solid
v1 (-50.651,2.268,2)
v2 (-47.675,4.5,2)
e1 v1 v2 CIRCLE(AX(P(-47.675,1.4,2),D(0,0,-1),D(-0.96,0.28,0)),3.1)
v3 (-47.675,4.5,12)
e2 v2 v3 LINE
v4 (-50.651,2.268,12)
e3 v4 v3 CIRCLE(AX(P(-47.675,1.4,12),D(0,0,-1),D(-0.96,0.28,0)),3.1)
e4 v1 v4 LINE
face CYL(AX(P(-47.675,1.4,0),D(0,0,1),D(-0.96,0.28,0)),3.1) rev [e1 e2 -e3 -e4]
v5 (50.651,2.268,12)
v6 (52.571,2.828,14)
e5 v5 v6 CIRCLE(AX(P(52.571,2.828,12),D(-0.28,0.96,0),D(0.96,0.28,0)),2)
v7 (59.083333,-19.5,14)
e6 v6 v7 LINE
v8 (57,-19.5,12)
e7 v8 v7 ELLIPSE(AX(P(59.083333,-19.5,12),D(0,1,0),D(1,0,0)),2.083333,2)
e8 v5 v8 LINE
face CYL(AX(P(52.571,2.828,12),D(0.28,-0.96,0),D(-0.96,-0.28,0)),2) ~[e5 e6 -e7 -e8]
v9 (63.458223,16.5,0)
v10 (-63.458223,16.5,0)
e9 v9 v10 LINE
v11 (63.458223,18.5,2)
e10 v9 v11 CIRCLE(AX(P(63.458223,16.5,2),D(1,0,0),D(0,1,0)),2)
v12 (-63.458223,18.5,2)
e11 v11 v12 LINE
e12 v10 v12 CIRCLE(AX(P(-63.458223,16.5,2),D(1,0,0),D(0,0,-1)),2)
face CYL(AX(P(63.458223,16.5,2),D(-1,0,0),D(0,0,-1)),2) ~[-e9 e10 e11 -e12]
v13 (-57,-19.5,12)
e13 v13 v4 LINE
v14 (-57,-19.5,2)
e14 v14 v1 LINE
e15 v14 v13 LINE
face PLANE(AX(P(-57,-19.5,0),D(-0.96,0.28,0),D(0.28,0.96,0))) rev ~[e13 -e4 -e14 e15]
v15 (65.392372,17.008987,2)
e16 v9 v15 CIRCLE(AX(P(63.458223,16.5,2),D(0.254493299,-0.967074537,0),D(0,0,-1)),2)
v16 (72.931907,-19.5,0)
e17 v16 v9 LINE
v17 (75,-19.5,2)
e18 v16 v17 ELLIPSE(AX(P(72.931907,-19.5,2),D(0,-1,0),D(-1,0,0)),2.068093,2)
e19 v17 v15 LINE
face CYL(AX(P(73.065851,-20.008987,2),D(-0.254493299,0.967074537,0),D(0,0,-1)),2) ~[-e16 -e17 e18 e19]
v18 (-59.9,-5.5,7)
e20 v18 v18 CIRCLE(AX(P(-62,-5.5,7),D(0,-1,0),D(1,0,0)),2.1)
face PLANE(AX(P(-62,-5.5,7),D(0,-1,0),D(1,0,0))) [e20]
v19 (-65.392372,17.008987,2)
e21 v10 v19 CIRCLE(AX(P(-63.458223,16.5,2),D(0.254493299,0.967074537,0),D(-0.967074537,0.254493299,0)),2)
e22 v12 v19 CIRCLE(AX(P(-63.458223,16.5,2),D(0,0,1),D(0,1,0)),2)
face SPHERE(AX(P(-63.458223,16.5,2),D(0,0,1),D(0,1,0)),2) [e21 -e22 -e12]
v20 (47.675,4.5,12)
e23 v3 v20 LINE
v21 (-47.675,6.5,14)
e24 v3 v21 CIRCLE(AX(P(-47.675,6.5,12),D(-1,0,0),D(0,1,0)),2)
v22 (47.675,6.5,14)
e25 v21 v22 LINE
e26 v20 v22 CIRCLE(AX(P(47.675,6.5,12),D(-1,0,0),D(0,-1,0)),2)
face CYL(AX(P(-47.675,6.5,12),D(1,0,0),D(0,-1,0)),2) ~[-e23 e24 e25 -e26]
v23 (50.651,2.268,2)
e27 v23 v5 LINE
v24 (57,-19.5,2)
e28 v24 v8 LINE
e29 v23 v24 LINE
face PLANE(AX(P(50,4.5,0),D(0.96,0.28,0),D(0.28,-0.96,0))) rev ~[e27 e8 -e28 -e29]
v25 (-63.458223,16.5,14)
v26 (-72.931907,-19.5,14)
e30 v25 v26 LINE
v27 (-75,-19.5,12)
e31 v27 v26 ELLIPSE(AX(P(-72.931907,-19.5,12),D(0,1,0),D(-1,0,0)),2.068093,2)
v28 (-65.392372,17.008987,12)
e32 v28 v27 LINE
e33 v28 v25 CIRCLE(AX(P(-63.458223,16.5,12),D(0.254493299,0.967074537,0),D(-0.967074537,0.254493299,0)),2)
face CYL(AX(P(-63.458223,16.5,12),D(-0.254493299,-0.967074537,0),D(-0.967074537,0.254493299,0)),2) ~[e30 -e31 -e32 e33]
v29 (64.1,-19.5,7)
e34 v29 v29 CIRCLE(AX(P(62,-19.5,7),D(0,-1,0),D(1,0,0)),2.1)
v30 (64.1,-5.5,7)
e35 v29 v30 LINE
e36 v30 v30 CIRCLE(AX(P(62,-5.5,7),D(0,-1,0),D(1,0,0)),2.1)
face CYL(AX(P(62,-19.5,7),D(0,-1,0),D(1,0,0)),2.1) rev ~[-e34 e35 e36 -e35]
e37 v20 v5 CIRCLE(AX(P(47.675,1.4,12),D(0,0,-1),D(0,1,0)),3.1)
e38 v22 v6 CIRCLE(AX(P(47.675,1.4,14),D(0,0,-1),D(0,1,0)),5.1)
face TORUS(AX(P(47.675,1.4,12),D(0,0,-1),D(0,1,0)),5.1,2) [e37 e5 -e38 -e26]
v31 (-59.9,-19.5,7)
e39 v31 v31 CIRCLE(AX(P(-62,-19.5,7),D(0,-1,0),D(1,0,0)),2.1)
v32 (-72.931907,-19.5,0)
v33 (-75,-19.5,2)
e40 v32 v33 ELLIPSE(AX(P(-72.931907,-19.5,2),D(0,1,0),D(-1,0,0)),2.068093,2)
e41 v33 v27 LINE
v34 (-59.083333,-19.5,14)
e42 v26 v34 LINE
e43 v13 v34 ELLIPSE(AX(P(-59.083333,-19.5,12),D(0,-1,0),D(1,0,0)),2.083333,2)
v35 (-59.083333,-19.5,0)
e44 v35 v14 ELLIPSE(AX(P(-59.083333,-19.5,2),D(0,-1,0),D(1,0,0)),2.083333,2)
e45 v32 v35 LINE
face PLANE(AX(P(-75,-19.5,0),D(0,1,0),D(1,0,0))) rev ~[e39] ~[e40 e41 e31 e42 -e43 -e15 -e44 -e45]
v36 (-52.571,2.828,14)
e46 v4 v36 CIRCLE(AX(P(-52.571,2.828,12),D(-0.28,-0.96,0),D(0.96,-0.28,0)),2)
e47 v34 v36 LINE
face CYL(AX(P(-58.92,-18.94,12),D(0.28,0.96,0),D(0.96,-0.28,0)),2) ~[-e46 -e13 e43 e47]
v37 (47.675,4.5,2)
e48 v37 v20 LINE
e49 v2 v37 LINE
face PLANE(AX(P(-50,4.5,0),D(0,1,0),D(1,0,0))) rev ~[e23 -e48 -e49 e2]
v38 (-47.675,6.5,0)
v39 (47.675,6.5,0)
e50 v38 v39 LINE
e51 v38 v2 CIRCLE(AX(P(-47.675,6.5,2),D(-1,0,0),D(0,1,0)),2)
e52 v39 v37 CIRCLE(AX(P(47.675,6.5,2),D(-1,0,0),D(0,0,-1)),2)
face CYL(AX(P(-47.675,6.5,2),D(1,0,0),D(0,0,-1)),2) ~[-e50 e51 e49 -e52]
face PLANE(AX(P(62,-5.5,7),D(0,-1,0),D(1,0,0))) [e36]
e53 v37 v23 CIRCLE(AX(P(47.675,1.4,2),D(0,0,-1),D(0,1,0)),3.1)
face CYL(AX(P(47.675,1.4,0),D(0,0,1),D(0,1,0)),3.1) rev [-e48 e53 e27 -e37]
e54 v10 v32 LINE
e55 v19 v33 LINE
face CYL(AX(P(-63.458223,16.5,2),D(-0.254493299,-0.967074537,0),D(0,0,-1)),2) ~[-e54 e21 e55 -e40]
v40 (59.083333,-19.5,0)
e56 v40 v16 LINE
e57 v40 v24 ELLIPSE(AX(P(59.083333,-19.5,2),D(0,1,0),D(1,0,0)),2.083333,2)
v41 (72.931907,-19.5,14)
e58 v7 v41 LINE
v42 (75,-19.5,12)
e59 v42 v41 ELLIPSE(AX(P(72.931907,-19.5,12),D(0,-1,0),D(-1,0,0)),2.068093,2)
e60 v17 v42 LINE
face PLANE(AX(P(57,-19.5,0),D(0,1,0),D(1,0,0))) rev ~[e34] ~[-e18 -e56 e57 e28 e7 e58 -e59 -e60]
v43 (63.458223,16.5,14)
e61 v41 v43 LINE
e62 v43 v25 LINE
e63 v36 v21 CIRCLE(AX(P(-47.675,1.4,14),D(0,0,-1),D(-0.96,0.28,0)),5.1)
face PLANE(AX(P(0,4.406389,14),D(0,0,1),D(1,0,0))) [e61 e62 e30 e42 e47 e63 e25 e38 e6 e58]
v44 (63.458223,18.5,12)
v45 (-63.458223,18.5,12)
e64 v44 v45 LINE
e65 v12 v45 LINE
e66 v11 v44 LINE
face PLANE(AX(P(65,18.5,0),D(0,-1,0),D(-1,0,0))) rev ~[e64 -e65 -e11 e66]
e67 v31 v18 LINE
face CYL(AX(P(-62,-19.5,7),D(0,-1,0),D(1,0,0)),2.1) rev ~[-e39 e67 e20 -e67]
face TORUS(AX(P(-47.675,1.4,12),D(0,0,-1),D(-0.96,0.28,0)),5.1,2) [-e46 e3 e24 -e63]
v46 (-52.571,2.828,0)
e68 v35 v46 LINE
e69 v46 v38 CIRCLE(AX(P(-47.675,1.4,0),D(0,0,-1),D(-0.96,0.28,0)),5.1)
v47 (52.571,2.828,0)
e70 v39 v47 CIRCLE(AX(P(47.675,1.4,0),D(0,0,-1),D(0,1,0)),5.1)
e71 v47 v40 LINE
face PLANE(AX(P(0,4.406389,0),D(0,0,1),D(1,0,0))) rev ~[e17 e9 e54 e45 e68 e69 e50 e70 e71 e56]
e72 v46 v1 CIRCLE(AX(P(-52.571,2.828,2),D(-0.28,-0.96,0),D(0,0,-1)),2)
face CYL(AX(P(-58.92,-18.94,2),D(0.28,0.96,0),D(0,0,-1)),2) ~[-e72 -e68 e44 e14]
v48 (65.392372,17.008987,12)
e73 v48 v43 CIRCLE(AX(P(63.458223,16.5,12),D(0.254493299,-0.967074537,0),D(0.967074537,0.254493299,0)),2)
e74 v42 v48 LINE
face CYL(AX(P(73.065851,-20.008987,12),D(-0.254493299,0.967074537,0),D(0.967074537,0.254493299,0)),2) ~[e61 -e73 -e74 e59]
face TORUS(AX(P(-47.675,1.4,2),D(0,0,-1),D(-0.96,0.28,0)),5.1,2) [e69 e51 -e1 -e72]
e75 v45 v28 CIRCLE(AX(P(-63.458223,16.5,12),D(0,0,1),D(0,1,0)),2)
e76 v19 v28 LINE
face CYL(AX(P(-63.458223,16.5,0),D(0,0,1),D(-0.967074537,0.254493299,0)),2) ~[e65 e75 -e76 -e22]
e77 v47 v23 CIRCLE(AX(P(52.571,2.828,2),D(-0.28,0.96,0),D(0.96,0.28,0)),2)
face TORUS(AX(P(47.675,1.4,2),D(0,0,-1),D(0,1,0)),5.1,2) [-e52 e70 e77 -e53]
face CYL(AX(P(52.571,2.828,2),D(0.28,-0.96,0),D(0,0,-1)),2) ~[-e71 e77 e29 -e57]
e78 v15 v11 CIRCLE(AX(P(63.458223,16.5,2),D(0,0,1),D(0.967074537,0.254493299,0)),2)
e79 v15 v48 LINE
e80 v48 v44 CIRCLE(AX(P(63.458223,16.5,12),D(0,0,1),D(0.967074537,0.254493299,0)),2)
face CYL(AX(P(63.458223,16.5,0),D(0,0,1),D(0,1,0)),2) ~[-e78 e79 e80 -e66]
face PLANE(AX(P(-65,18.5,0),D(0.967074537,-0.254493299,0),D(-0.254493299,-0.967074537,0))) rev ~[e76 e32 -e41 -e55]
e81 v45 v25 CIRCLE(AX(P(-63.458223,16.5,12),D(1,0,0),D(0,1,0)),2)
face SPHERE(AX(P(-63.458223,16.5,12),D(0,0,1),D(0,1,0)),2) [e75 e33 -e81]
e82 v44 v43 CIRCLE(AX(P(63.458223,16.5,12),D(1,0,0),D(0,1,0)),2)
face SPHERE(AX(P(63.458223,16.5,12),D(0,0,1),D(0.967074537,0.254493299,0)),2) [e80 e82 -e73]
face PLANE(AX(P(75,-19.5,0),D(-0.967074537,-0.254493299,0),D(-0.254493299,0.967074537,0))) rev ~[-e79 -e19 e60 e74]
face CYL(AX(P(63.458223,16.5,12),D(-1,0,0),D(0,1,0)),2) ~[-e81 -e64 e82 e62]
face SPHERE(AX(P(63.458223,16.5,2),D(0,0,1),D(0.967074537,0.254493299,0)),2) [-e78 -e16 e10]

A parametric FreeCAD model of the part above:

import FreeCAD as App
import Part
import Sketcher


def edges_at(feature, points):
    """Names of the edges that pass closest to the given points."""
    edges = feature.Shape.Edges
    near = lambda p: min(range(len(edges)), key=lambda i: edges[i].distToShape(Part.Vertex(*p))[0])
    return sorted({f"Edge{near(p) + 1}" for p in points})

doc = App.newDocument("Part")
body = doc.addObject("PartDesign::Body", "Body")

sketch1 = body.newObject("Sketcher::SketchObject", "Sketch")
sketch1.AttachmentSupport = (doc.getObject("XY_Plane"), [""])
sketch1.MapMode = "FlatFace"
sketch1.addGeometry([
    Part.LineSegment(App.Vector(-65, 18, 0), App.Vector(-75, -20, 0)),
    Part.LineSegment(App.Vector(-75, -20, 0), App.Vector(-57, -20, 0)),
    Part.LineSegment(App.Vector(-57, -20, 0), App.Vector(-50, 4, 0)),
    Part.LineSegment(App.Vector(-50, 4, 0), App.Vector(50, 4, 0)),
    Part.LineSegment(App.Vector(50, 4, 0), App.Vector(57, -20, 0)),
    Part.LineSegment(App.Vector(57, -20, 0), App.Vector(75, -20, 0)),
    Part.LineSegment(App.Vector(75, -20, 0), App.Vector(65, 18, 0)),
    Part.LineSegment(App.Vector(65, 18, 0), App.Vector(-65, 18, 0)),
], False)
sketch1.addConstraint([
    Sketcher.Constraint("Coincident", 0, 2, 1, 1),
    Sketcher.Constraint("Coincident", 1, 2, 2, 1),
    Sketcher.Constraint("Coincident", 2, 2, 3, 1),
    Sketcher.Constraint("Coincident", 3, 2, 4, 1),
    Sketcher.Constraint("Coincident", 4, 2, 5, 1),
    Sketcher.Constraint("Coincident", 5, 2, 6, 1),
    Sketcher.Constraint("Coincident", 6, 2, 7, 1),
    Sketcher.Constraint("Coincident", 7, 2, 0, 1),
    Sketcher.Constraint("Horizontal", 1),
    Sketcher.Constraint("Horizontal", 3),
    Sketcher.Constraint("Horizontal", 5),
    Sketcher.Constraint("Horizontal", 7),
    Sketcher.Constraint("Symmetric", 1, 2, 4, 2, -2),
    Sketcher.Constraint("Equal", 1, 5),
    Sketcher.Constraint("Equal", 2, 4),
    Sketcher.Constraint("Equal", 0, 6),
    Sketcher.Constraint("DistanceX", 1, 1, 1, 2, 18.0),
    Sketcher.Constraint("DistanceX", 3, 1, 3, 2, 100.0),
    Sketcher.Constraint("DistanceX", 7, 2, 7, 1, 130.0),
    Sketcher.Constraint("Distance", 2, 25.0),
    Sketcher.Constraint("DistanceX", 0, 2, -1, 1, 75.0),
    Sketcher.Constraint("DistanceY", 3, 2, 6, 2, 14.0),
    Sketcher.Constraint("DistanceY", 0, 2, -1, 1, 19.5),
])
pad1 = body.newObject("PartDesign::Pad", "Pad")
pad1.Profile = sketch1
pad1.Length = 14

sketch2 = body.newObject("Sketcher::SketchObject", "Sketch001")
sketch2.AttachmentSupport = (doc.getObject("XZ_Plane"), [""])
sketch2.MapMode = "FlatFace"
sketch2.AttachmentOffset = App.Placement(App.Vector(0, 0, 19.5), App.Rotation())
sketch2.addGeometry([
    Part.Circle(App.Vector(-62, 7, 0), App.Vector(0, 0, 1), 2.1),
    Part.Circle(App.Vector(62, 7, 0), App.Vector(0, 0, 1), 2.1),
], False)
sketch2.addConstraint([
    Sketcher.Constraint("Equal", 0, 1),
    Sketcher.Constraint("Symmetric", 0, 3, 1, 3, -2),
    Sketcher.Constraint("Diameter", 0, 4.2),
    Sketcher.Constraint("DistanceX", 0, 3, -1, 1, 62.0),
    Sketcher.Constraint("DistanceY", -1, 1, 0, 3, 7.0),
])
pocket1 = body.newObject("PartDesign::Pocket", "Pocket")
pocket1.Profile = sketch2
pocket1.Length = 14
doc.recompute()

fillet = body.newObject("PartDesign::Fillet", "Fillet")
fillet.Base = (pocket1, edges_at(pocket1, [(65, 18.5, 7), (-65, 18.5, 7)]))
fillet.Radius = 2
doc.recompute()

fillet2 = body.newObject("PartDesign::Fillet", "Fillet001")
fillet2.Base = (fillet, edges_at(fillet, [(50, 4.5, 7), (-50, 4.5, 7)]))
fillet2.Radius = 3.1
doc.recompute()

fillet3 = body.newObject("PartDesign::Fillet", "Fillet002")
fillet3.Base = (fillet2, edges_at(fillet2, [
    (0, 18.5, 0),
    (-64.679, 18.084, 0),
    (-70.196, -1.246, 0),
    (64.679, 18.084, 0),
    (70.196, -1.246, 0),
    (53.825, -8.616, 0),
    (49.535, 3.88, 0),
    (0, 4.5, 0),
    (-49.535, 3.88, 0),
    (-53.825, -8.616, 0),
    (-70.196, -1.246, 14),
    (-64.679, 18.084, 14),
    (0, 18.5, 14),
    (64.679, 18.084, 14),
    (70.196, -1.246, 14),
    (49.535, 3.88, 14),
    (0, 4.5, 14),
    (53.825, -8.616, 14),
    (-49.535, 3.88, 14),
    (-53.825, -8.616, 14),
]))
fillet3.Radius = 2

doc.recompute()
